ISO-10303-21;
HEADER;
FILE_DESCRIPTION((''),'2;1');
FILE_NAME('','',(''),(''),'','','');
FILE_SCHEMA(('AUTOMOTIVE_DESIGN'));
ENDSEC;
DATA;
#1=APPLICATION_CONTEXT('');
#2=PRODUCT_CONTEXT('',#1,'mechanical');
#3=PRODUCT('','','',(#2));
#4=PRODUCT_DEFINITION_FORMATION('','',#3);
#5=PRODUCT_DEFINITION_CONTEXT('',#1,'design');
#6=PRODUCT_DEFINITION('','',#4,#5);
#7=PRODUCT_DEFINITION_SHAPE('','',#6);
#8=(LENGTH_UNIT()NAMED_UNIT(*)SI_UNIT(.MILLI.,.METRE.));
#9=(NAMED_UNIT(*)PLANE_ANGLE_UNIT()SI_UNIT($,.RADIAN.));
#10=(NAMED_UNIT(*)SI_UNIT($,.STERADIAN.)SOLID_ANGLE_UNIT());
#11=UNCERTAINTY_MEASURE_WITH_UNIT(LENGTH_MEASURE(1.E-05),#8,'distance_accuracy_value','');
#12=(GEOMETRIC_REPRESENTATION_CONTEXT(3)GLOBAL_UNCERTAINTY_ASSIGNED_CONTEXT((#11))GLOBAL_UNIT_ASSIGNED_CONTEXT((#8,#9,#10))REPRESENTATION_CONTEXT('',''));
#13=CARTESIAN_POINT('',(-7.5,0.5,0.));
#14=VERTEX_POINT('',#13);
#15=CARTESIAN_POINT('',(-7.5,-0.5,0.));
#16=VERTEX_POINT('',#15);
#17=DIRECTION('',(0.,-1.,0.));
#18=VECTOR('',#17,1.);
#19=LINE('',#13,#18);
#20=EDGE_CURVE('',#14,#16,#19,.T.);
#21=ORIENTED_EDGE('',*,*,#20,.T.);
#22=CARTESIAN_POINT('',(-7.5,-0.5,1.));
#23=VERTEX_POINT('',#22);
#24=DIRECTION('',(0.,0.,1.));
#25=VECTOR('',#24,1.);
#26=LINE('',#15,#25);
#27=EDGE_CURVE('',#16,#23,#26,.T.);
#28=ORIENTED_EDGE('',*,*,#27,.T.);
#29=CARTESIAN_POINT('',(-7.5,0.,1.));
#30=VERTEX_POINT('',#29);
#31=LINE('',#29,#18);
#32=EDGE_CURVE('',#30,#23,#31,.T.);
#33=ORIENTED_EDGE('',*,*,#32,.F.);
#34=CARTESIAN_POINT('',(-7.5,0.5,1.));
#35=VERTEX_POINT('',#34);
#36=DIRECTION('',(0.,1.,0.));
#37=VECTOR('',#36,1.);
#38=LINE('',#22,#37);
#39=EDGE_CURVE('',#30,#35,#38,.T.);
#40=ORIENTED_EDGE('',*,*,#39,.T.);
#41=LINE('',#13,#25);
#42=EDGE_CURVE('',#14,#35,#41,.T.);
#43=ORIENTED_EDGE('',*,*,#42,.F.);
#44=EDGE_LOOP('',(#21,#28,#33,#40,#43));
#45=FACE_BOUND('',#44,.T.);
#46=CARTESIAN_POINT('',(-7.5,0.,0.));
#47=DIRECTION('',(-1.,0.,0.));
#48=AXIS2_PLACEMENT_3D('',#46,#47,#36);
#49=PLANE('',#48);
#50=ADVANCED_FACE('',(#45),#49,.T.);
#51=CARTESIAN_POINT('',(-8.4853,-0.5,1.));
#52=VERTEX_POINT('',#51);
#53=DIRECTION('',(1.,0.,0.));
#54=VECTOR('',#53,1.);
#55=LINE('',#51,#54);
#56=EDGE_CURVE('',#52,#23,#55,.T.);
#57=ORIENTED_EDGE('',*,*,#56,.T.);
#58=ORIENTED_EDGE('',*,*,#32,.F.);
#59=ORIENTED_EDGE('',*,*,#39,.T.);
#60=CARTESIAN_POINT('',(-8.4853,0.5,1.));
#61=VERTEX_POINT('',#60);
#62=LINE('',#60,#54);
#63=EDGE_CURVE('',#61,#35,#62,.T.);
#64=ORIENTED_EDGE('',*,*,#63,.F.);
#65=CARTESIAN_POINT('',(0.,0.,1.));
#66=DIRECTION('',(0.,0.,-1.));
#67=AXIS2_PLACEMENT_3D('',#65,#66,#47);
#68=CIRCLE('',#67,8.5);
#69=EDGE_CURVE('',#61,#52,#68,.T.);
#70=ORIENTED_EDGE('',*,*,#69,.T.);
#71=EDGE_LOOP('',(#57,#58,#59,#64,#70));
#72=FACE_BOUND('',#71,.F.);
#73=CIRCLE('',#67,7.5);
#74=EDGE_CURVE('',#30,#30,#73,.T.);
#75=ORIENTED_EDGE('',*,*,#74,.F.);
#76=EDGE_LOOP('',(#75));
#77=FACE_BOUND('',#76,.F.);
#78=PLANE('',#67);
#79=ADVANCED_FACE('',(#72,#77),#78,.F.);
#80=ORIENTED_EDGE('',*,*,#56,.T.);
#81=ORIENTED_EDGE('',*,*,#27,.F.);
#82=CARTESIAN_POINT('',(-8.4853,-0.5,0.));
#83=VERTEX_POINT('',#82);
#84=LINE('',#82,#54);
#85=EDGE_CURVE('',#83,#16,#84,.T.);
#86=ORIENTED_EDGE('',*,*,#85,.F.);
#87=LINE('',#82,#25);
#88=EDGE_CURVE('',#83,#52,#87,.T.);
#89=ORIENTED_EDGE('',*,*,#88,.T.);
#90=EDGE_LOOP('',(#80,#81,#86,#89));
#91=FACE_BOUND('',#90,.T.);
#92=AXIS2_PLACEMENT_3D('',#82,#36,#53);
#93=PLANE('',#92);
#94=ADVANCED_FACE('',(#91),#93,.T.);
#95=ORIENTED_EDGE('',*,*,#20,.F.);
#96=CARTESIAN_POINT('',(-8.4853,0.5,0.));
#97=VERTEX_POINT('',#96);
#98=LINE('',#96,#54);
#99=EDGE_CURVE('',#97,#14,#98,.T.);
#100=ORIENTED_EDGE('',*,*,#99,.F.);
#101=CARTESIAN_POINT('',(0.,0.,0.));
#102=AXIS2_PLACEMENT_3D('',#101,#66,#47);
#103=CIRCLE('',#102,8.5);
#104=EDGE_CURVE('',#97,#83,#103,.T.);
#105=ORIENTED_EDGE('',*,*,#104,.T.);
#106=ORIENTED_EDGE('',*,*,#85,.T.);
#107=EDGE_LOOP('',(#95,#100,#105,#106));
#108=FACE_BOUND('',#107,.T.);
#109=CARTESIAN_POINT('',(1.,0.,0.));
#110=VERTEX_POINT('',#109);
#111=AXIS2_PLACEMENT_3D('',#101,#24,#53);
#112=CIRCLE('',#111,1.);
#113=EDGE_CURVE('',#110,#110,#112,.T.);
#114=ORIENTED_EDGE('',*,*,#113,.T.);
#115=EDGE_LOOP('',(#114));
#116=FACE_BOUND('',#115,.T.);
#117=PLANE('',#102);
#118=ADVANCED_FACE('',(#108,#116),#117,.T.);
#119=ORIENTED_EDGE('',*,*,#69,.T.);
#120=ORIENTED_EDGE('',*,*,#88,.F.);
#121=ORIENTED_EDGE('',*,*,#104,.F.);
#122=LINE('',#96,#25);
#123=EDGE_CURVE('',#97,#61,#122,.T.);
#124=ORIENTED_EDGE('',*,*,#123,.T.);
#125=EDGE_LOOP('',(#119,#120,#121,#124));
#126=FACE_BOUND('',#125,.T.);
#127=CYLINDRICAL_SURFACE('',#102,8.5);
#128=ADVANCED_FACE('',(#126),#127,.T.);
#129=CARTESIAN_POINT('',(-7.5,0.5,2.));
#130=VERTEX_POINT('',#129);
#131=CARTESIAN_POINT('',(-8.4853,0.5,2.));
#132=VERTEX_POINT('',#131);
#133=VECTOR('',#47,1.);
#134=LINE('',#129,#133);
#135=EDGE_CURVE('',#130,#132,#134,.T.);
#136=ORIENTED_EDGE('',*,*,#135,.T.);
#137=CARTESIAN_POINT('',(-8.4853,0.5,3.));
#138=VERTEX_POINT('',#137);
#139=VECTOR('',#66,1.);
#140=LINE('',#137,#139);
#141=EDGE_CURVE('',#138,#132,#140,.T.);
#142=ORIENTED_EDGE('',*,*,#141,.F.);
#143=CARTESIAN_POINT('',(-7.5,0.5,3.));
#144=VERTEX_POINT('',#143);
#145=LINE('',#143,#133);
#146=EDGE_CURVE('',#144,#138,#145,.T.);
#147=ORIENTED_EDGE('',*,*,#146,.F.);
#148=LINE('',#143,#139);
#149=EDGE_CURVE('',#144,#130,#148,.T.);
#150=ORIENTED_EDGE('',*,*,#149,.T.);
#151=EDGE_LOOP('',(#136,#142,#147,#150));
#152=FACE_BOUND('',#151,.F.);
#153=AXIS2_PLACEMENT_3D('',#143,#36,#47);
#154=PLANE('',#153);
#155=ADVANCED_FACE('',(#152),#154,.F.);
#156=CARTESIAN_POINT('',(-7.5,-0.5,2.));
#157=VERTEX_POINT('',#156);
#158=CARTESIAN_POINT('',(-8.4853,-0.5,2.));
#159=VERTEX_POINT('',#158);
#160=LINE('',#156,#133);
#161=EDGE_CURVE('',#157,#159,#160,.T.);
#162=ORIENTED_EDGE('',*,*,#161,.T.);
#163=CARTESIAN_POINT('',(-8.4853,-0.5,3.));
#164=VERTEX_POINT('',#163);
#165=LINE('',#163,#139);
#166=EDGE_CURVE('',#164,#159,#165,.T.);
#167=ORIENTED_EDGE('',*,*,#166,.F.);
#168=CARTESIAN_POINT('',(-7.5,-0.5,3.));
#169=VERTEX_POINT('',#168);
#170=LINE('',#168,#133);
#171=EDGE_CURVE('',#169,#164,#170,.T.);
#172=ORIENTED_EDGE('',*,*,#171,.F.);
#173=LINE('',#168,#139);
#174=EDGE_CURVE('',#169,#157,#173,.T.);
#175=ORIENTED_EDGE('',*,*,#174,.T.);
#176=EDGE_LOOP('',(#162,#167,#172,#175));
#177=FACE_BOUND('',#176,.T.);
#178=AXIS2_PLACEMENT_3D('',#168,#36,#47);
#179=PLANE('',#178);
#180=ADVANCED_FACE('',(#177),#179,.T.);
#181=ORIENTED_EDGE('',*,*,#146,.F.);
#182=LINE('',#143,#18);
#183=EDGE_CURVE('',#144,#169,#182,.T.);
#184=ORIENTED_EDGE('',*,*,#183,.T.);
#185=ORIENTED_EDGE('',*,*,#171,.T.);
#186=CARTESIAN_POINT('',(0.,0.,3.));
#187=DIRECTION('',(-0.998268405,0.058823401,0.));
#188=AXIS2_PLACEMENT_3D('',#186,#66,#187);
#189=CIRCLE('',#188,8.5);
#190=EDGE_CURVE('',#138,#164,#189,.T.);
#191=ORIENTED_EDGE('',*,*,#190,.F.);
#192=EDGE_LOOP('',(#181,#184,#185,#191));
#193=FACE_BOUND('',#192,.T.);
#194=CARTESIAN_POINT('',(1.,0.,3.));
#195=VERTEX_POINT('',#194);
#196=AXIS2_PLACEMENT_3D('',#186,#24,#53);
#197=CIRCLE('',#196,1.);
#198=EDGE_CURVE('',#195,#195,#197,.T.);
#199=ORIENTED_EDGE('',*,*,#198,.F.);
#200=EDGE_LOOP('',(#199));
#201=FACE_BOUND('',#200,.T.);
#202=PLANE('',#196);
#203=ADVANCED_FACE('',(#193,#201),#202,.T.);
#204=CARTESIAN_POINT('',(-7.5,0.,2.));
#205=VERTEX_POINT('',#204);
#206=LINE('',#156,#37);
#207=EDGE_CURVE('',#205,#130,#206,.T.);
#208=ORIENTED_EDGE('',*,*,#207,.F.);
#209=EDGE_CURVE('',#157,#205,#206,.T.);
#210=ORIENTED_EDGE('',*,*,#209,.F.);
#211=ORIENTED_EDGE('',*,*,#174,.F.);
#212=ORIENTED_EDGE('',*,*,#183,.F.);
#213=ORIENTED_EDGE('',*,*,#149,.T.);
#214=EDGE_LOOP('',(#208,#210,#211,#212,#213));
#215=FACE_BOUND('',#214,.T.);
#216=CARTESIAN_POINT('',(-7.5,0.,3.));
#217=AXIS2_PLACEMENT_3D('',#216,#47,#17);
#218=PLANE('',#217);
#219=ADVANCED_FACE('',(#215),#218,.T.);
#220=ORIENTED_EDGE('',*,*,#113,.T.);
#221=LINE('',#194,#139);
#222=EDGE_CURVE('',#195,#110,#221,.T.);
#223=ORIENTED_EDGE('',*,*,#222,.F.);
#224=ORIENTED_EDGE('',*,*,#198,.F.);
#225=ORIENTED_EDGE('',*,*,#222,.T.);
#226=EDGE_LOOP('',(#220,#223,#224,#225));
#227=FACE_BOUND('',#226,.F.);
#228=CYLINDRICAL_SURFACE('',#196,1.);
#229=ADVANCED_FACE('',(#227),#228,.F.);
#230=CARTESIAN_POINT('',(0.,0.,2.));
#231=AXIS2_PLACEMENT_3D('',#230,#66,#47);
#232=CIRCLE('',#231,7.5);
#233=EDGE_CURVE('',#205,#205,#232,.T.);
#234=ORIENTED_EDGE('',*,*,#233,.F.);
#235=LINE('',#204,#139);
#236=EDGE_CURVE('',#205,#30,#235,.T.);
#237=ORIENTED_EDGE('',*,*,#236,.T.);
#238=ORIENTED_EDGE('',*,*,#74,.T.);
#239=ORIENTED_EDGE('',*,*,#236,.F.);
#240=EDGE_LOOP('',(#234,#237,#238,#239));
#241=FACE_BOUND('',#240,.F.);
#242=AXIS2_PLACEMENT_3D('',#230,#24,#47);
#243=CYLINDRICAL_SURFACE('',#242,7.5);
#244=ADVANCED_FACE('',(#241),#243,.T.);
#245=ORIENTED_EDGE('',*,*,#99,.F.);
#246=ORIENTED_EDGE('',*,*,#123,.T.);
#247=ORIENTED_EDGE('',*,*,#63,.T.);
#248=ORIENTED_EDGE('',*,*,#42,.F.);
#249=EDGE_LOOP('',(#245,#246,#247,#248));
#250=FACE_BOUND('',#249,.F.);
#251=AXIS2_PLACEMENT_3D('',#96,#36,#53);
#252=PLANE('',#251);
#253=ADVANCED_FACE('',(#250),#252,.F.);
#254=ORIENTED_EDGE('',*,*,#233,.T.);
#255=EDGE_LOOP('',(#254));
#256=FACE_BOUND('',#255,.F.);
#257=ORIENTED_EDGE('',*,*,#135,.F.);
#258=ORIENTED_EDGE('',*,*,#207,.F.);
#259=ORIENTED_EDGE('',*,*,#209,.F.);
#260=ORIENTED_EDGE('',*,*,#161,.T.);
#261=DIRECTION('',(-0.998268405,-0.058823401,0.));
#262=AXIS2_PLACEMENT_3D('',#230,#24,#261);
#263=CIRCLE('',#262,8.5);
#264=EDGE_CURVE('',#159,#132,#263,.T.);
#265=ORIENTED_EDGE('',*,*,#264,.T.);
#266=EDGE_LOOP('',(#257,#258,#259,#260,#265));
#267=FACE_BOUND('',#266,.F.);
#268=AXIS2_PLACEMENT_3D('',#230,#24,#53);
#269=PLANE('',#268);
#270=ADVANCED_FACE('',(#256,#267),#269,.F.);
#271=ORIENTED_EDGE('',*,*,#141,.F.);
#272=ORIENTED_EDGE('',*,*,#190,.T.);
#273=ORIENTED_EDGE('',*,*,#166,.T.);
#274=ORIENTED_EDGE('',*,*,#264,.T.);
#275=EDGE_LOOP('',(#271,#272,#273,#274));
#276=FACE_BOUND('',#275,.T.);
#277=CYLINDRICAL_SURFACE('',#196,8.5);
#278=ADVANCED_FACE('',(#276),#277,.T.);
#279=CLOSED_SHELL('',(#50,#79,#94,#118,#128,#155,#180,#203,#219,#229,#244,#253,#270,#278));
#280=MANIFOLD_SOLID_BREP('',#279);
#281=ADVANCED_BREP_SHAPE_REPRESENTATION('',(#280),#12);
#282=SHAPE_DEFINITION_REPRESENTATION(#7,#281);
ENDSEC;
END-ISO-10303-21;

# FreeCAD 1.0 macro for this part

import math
import FreeCAD as App
import Part
import Sketcher

doc = App.newDocument("Part")
body = doc.addObject("PartDesign::Body", "Body")

sketch1 = doc.addObject("Sketcher::SketchObject", "Sketch")
body.addObject(sketch1)
sketch1.AttachmentSupport = (doc.XY_Plane, [""])
sketch1.MapMode = "FlatFace"
sketch1.addGeometry(Part.Circle(App.Vector(0, 0, 0), App.Vector(0, 0, 1), 5), False)
sketch1.addConstraint([
    Sketcher.Constraint("Coincident", 0, 3, -1, 1),
    Sketcher.Constraint("Diameter", 0, 10.0),
])
pad1 = doc.addObject("PartDesign::Pad", "Pad")
body.addObject(pad1)
pad1.Profile = sketch1
pad1.Length = 1

sketch2 = doc.addObject("Sketcher::SketchObject", "Sketch001")
body.addObject(sketch2)
sketch2.AttachmentSupport = (doc.XY_Plane, [""])
sketch2.MapMode = "FlatFace"
sketch2.AttachmentOffset = App.Placement(App.Vector(0, 0, 1), App.Rotation())
sketch2.addGeometry(Part.Circle(App.Vector(0, 0, 0), App.Vector(0, 0, 1), 4), False)
sketch2.addConstraint([
    Sketcher.Constraint("Coincident", 0, 3, -1, 1),
    Sketcher.Constraint("Diameter", 0, 8.0),
])
pad2 = doc.addObject("PartDesign::Pad", "Pad001")
body.addObject(pad2)
pad2.Profile = sketch2
pad2.Length = 1

sketch3 = doc.addObject("Sketcher::SketchObject", "Sketch002")
body.addObject(sketch3)
sketch3.AttachmentSupport = (doc.XY_Plane, [""])
sketch3.MapMode = "FlatFace"
sketch3.AttachmentOffset = App.Placement(App.Vector(0, 0, 2), App.Rotation())
sketch3.addGeometry(Part.Circle(App.Vector(0, 0, 0), App.Vector(0, 0, 1), 5), False)
sketch3.addConstraint([
    Sketcher.Constraint("Coincident", 0, 3, -1, 1),
    Sketcher.Constraint("Diameter", 0, 10.0),
])
pad3 = doc.addObject("PartDesign::Pad", "Pad002")
body.addObject(pad3)
pad3.Profile = sketch3
pad3.Length = 1

sketch4 = doc.addObject("Sketcher::SketchObject", "Sketch003")
body.addObject(sketch4)
sketch4.AttachmentSupport = (doc.XY_Plane, [""])
sketch4.MapMode = "FlatFace"
sketch4.AttachmentOffset = App.Placement(App.Vector(0, 0, 3), App.Rotation())
sketch4.addGeometry(Part.Circle(App.Vector(0, 0, 0), App.Vector(0, 0, 1), 1), False)
sketch4.addConstraint([
    Sketcher.Constraint("Coincident", 0, 3, -1, 1),
    Sketcher.Constraint("Diameter", 0, 2.0),
])
pocket1 = doc.addObject("PartDesign::Pocket", "Pocket")
body.addObject(pocket1)
pocket1.Profile = sketch4
pocket1.Length = 4

sketch5 = doc.addObject("Sketcher::SketchObject", "Sketch004")
body.addObject(sketch5)
sketch5.AttachmentSupport = (doc.XY_Plane, [""])
sketch5.MapMode = "FlatFace"
sketch5.AttachmentOffset = App.Placement(App.Vector(0, 0, 3), App.Rotation())
sketch5.addGeometry([
    Part.LineSegment(App.Vector(-4, 0.5, 0), App.Vector(-5, 0.5, 0)),
    Part.LineSegment(App.Vector(-5, 0.5, 0), App.Vector(-5, -0.5, 0)),
    Part.LineSegment(App.Vector(-5, -0.5, 0), App.Vector(-4, -0.5, 0)),
    Part.LineSegment(App.Vector(-4, -0.5, 0), App.Vector(-4, 0.5, 0)),
], False)
sketch5.addConstraint([
    Sketcher.Constraint("Coincident", 0, 2, 1, 1),
    Sketcher.Constraint("Coincident", 1, 2, 2, 1),
    Sketcher.Constraint("Coincident", 2, 2, 3, 1),
    Sketcher.Constraint("Coincident", 3, 2, 0, 1),
    Sketcher.Constraint("Horizontal", 0),
    Sketcher.Constraint("Vertical", 1),
    Sketcher.Constraint("Horizontal", 2),
    Sketcher.Constraint("Vertical", 3),
    Sketcher.Constraint("Equal", 2, 1),
    Sketcher.Constraint("DistanceX", 0, 2, 0, 1, 1.0),
    Sketcher.Constraint("DistanceY", -1, 1, 0, 2, 0.5),
    Sketcher.Constraint("DistanceX", 0, 2, -1, 1, 5.0),
])
pocket2 = doc.addObject("PartDesign::Pocket", "Pocket001")
body.addObject(pocket2)
pocket2.Profile = sketch5
pocket2.Length = 10

sketch6 = doc.addObject("Sketcher::SketchObject", "Sketch005")
body.addObject(sketch6)
sketch6.AttachmentSupport = (doc.XY_Plane, [""])
sketch6.MapMode = "FlatFace"
sketch6.AttachmentOffset = App.Placement(App.Vector(0, 0, 3), App.Rotation())
sketch6.addGeometry([
    Part.ArcOfCircle(Part.Circle(App.Vector(0, 0, 0), App.Vector(0, 0, 1), 8.5), math.radians(-177), math.radians(177)),
    Part.LineSegment(App.Vector(-8.5, 0.5, 0), App.Vector(-7.5, 0.5, 0)),
    Part.LineSegment(App.Vector(-7.5, 0.5, 0), App.Vector(-7.5, -0.5, 0)),
    Part.LineSegment(App.Vector(-7.5, -0.5, 0), App.Vector(-8.5, -0.5, 0)),
    Part.Circle(App.Vector(0, 0, 0), App.Vector(0, 0, 1), 1),
], False)
sketch6.addConstraint([
    Sketcher.Constraint("Coincident", 0, 2, 1, 1),
    Sketcher.Constraint("Coincident", 1, 2, 2, 1),
    Sketcher.Constraint("Coincident", 2, 2, 3, 1),
    Sketcher.Constraint("Coincident", 3, 2, 0, 1),
    Sketcher.Constraint("Horizontal", 1),
    Sketcher.Constraint("Vertical", 2),
    Sketcher.Constraint("Horizontal", 3),
    Sketcher.Constraint("Coincident", 0, 3, -1, 1),
    Sketcher.Constraint("Coincident", 4, 3, -1, 1),
    Sketcher.Constraint("Vertical", 0, 2, 3, 2),
    Sketcher.Constraint("Diameter", 4, 2.0),
    Sketcher.Constraint("Radius", 0, 8.5),
    Sketcher.Constraint("DistanceY", 2, 2, 2, 1, 1.0),
    Sketcher.Constraint("DistanceX", 1, 2, -1, 1, 7.5),
])
pad4 = doc.addObject("PartDesign::Pad", "Pad003")
body.addObject(pad4)
pad4.Profile = sketch6
pad4.Length = 1
pad4.Reversed = True

sketch7 = doc.addObject("Sketcher::SketchObject", "Sketch006")
body.addObject(sketch7)
sketch7.AttachmentSupport = (doc.XY_Plane, [""])
sketch7.MapMode = "FlatFace"
sketch7.AttachmentOffset = App.Placement(App.Vector(0, 0, 2), App.Rotation())
sketch7.addGeometry([
    Part.Circle(App.Vector(0, 0, 0), App.Vector(0, 0, 1), 7.5),
    Part.Circle(App.Vector(0, 0, 0), App.Vector(0, 0, 1), 1),
], False)
sketch7.addConstraint([
    Sketcher.Constraint("Coincident", 0, 3, -1, 1),
    Sketcher.Constraint("Coincident", 1, 3, -1, 1),
    Sketcher.Constraint("Diameter", 0, 15.0),
    Sketcher.Constraint("Diameter", 1, 2.0),
])
pad5 = doc.addObject("PartDesign::Pad", "Pad004")
body.addObject(pad5)
pad5.Profile = sketch7
pad5.Length = 1
pad5.Reversed = True

sketch8 = doc.addObject("Sketcher::SketchObject", "Sketch007")
body.addObject(sketch8)
sketch8.AttachmentSupport = (doc.XY_Plane, [""])
sketch8.MapMode = "FlatFace"
sketch8.addGeometry([
    Part.LineSegment(App.Vector(-7.5, 0.5, 0), App.Vector(-8.5, 0.5, 0)),
    Part.ArcOfCircle(Part.Circle(App.Vector(0, 0, 0), App.Vector(0, 0, 1), 8.5), math.radians(-177), math.radians(177)),
    Part.LineSegment(App.Vector(-8.5, -0.5, 0), App.Vector(-7.5, -0.5, 0)),
    Part.LineSegment(App.Vector(-7.5, -0.5, 0), App.Vector(-7.5, 0.5, 0)),
    Part.Circle(App.Vector(0, 0, 0), App.Vector(0, 0, 1), 1),
], False)
sketch8.addConstraint([
    Sketcher.Constraint("Coincident", 0, 2, 1, 2),
    Sketcher.Constraint("Coincident", 1, 1, 2, 1),
    Sketcher.Constraint("Coincident", 2, 2, 3, 1),
    Sketcher.Constraint("Coincident", 3, 2, 0, 1),
    Sketcher.Constraint("Horizontal", 0),
    Sketcher.Constraint("Horizontal", 2),
    Sketcher.Constraint("Vertical", 3),
    Sketcher.Constraint("Coincident", 1, 3, -1, 1),
    Sketcher.Constraint("Coincident", 4, 3, -1, 1),
    Sketcher.Constraint("Vertical", 0, 2, 1, 1),
    Sketcher.Constraint("Diameter", 4, 2.0),
    Sketcher.Constraint("Radius", 1, 8.5),
    Sketcher.Constraint("DistanceY", 3, 1, 3, 2, 1.0),
    Sketcher.Constraint("DistanceX", 2, 2, -1, 1, 7.5),
])
pad6 = doc.addObject("PartDesign::Pad", "Pad005")
body.addObject(pad6)
pad6.Profile = sketch8
pad6.Length = 1

doc.recompute()
